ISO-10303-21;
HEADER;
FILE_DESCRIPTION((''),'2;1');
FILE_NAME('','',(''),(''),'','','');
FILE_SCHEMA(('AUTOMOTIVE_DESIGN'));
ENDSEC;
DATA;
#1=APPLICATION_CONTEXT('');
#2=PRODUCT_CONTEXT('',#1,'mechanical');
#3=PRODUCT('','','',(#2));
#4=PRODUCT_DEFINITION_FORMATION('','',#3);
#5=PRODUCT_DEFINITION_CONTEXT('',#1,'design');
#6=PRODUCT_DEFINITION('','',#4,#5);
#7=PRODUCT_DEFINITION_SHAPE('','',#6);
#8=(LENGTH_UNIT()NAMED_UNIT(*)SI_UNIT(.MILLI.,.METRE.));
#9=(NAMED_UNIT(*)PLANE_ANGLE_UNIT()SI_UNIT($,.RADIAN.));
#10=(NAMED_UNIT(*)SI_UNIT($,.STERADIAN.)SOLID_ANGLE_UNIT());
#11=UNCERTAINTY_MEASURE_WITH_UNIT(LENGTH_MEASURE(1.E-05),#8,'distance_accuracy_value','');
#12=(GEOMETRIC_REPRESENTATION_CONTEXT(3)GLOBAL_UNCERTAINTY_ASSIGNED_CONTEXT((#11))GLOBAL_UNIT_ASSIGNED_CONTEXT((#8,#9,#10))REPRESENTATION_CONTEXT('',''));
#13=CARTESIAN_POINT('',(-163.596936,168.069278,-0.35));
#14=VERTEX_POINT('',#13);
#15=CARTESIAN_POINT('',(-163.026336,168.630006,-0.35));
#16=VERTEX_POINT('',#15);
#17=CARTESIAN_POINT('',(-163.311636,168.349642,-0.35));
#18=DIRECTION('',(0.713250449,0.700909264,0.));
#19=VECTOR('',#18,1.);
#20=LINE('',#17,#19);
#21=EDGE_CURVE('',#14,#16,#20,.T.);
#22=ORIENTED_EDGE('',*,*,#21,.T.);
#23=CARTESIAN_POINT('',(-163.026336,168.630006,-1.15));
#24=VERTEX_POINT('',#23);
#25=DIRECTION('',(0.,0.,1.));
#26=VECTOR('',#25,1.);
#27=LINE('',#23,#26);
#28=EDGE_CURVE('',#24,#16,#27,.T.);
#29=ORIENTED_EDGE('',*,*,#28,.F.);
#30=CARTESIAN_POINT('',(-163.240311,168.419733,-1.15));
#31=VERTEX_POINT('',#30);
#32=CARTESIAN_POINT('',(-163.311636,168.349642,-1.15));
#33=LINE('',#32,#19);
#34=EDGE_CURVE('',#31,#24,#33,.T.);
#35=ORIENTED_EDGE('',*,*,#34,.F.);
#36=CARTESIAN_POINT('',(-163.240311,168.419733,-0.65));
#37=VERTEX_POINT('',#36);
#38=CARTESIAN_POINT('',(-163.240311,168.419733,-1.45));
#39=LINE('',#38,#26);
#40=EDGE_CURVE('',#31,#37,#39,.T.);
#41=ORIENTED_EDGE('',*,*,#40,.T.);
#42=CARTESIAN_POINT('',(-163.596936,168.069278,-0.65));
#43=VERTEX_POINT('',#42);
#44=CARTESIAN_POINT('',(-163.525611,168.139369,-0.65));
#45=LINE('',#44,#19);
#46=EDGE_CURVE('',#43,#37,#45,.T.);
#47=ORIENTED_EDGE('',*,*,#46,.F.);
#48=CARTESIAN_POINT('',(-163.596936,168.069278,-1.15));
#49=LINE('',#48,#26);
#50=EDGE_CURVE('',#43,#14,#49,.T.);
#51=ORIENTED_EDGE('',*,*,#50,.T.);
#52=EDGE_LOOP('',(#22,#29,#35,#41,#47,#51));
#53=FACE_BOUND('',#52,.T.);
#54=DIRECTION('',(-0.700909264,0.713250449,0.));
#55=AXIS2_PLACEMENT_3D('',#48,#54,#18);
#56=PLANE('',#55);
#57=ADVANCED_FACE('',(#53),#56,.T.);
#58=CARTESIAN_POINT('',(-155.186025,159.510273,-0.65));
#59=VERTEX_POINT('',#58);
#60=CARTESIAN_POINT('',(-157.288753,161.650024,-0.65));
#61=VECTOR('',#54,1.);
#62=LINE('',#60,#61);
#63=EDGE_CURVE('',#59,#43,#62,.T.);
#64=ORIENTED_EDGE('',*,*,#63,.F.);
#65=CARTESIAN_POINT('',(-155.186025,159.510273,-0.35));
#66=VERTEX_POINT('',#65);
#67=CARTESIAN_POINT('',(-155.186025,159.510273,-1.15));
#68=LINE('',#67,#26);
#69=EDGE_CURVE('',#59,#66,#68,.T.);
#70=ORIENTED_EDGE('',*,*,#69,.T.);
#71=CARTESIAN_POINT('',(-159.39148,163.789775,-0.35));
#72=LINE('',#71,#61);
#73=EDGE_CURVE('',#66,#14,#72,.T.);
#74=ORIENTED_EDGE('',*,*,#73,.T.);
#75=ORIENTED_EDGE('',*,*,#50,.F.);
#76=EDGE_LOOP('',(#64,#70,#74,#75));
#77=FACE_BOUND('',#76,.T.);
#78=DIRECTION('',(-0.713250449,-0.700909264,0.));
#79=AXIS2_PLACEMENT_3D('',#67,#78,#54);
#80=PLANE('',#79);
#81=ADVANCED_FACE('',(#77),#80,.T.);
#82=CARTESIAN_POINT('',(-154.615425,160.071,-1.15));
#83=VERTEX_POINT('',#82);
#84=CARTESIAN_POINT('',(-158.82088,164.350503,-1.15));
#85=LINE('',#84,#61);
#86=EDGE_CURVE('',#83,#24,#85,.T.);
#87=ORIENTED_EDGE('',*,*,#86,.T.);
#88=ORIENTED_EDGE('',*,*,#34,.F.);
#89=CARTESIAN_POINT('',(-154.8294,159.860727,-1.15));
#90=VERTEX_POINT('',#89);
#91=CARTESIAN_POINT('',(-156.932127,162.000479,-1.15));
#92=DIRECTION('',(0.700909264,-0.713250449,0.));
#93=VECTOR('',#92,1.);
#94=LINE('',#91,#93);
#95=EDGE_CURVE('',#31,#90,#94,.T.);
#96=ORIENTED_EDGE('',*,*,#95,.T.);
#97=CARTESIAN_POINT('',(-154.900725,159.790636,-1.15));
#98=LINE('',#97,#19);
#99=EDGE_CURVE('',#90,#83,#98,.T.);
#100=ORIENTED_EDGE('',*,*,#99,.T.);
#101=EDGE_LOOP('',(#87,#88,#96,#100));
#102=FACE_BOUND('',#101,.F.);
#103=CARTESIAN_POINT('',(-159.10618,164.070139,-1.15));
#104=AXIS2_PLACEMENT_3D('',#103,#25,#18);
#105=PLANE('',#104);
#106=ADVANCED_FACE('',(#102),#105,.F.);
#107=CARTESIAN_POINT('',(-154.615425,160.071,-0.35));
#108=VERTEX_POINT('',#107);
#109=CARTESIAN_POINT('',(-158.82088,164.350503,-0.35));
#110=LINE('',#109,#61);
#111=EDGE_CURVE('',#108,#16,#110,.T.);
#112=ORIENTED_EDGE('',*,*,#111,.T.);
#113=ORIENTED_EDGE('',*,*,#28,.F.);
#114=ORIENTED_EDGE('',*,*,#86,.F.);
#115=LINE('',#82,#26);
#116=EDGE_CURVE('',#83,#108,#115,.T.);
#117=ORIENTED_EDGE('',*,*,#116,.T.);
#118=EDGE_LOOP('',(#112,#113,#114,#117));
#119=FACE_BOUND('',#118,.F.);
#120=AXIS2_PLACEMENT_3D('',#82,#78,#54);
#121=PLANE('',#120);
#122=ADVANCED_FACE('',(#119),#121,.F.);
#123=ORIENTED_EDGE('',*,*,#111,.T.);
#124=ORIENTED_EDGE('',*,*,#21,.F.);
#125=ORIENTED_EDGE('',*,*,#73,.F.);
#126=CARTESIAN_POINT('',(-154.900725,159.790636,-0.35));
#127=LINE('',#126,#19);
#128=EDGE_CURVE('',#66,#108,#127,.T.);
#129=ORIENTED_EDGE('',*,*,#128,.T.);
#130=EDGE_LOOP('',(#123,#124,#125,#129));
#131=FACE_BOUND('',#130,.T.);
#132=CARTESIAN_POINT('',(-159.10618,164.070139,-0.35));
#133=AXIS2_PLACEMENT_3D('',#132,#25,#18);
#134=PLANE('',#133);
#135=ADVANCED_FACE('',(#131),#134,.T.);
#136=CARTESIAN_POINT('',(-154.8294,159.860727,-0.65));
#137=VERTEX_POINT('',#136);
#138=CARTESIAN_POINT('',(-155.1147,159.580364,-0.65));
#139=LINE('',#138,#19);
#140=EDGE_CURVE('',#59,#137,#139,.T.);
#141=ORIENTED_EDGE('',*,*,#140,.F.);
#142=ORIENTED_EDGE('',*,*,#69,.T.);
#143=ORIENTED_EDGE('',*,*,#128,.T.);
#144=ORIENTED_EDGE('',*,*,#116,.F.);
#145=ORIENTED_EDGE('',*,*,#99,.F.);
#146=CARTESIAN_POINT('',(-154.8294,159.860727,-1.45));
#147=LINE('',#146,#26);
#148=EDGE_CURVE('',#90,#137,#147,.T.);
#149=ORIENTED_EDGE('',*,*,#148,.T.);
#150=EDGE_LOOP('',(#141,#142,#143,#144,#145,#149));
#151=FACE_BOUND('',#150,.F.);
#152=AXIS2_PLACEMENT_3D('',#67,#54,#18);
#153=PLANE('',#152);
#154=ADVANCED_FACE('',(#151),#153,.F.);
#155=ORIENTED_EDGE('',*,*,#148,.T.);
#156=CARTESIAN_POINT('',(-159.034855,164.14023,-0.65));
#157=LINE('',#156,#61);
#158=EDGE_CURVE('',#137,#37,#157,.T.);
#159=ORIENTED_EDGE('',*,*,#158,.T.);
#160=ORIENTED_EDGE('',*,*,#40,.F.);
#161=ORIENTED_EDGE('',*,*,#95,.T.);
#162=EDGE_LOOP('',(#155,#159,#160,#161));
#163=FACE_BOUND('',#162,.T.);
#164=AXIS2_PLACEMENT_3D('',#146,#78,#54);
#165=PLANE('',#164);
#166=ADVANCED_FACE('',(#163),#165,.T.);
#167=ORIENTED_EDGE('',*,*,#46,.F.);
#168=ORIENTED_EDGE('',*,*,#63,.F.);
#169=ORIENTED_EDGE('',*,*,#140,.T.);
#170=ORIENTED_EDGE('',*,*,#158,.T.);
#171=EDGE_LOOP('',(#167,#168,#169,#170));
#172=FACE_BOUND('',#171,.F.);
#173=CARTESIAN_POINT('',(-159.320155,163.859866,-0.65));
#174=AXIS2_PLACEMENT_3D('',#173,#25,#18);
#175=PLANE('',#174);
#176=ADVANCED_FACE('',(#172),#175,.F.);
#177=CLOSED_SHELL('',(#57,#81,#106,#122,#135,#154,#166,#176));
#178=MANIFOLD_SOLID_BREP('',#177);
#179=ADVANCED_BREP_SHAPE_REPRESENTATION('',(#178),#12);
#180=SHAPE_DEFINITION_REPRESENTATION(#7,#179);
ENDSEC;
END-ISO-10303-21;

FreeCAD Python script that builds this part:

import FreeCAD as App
import Part
import Sketcher

V = App.Vector


def add_polygon(sketch, points):
    """Adds a closed chain of lines whose ends are joined by coincident constraints."""
    first, n = sketch.GeometryCount, len(points)
    for a, b in zip(points, points[1:] + points[:1]):
        sketch.addGeometry(Part.LineSegment(App.Vector(*a, 0), App.Vector(*b, 0)), False)
    for i in range(n):
        sketch.addConstraint(Sketcher.Constraint("Coincident", first + i, 2, first + (i + 1) % n, 1))

doc = App.newDocument("Part")
body = doc.addObject("PartDesign::Body", "Body")

sketch1 = body.newObject("Sketcher::SketchObject", "Sketch")
sketch1.AttachmentSupport = (doc.getObject("XY_Plane"), [""])
sketch1.MapMode = "FlatFace"
add_polygon(sketch1, [(0, 12), (0, 0), (0.8, 0), (0.8, 12)])
sketch1.addConstraint([
    Sketcher.Constraint("Vertical", 0),
    Sketcher.Constraint("Horizontal", 1),
    Sketcher.Constraint("Vertical", 2),
    Sketcher.Constraint("Horizontal", 3),
    Sketcher.Constraint("Coincident", 0, 2, -1, 1),
    Sketcher.Constraint("DistanceY", 0, 2, 0, 1, 12.0),
    Sketcher.Constraint("DistanceX", 1, 1, 1, 2, 0.8),
])
pad1 = body.newObject("PartDesign::Pad", "Pad")
pad1.Profile = sketch1
pad1.Length = 0.8
body2 = doc.addObject("PartDesign::Body", "Body001")

sketch2 = body2.newObject("Sketcher::SketchObject", "Sketch001")
sketch2.AttachmentSupport = (doc.getObject("XY_Plane001"), [""])
sketch2.MapMode = "FlatFace"
sketch2.AttachmentOffset = App.Placement(V(0, 0, 0.3), App.Rotation())
add_polygon(sketch2, [(0.3, 12), (0.3, 0), (1.1, 0), (1.1, 12)])
sketch2.addConstraint([
    Sketcher.Constraint("Vertical", 0),
    Sketcher.Constraint("Horizontal", 1),
    Sketcher.Constraint("Vertical", 2),
    Sketcher.Constraint("Horizontal", 3),
    Sketcher.Constraint("PointOnObject", 0, 2, -1),
    Sketcher.Constraint("DistanceY", 0, 2, 0, 1, 12.0),
    Sketcher.Constraint("DistanceX", 1, 1, 1, 2, 0.8),
    Sketcher.Constraint("DistanceX", -1, 1, 0, 2, 0.3),
])
pad2 = body2.newObject("PartDesign::Pad", "Pad001")
pad2.Profile = sketch2
pad2.Length = 0.8
doc.recompute()

boolean = body2.newObject("PartDesign::Boolean", "Boolean")
boolean.Type = "Cut"
boolean.addObjects([body])
body3 = doc.addObject("PartDesign::Body", "Body002")
doc.recompute()

body2.Placement = App.Placement(V(-155.4, 159.3, -1.45), App.Rotation(V(0, 0, 1), 44.5))
boolean2 = body3.newObject("PartDesign::Boolean", "Boolean001")
boolean2.Type = "Fuse"
boolean2.addObjects([body2])

doc.recompute()
